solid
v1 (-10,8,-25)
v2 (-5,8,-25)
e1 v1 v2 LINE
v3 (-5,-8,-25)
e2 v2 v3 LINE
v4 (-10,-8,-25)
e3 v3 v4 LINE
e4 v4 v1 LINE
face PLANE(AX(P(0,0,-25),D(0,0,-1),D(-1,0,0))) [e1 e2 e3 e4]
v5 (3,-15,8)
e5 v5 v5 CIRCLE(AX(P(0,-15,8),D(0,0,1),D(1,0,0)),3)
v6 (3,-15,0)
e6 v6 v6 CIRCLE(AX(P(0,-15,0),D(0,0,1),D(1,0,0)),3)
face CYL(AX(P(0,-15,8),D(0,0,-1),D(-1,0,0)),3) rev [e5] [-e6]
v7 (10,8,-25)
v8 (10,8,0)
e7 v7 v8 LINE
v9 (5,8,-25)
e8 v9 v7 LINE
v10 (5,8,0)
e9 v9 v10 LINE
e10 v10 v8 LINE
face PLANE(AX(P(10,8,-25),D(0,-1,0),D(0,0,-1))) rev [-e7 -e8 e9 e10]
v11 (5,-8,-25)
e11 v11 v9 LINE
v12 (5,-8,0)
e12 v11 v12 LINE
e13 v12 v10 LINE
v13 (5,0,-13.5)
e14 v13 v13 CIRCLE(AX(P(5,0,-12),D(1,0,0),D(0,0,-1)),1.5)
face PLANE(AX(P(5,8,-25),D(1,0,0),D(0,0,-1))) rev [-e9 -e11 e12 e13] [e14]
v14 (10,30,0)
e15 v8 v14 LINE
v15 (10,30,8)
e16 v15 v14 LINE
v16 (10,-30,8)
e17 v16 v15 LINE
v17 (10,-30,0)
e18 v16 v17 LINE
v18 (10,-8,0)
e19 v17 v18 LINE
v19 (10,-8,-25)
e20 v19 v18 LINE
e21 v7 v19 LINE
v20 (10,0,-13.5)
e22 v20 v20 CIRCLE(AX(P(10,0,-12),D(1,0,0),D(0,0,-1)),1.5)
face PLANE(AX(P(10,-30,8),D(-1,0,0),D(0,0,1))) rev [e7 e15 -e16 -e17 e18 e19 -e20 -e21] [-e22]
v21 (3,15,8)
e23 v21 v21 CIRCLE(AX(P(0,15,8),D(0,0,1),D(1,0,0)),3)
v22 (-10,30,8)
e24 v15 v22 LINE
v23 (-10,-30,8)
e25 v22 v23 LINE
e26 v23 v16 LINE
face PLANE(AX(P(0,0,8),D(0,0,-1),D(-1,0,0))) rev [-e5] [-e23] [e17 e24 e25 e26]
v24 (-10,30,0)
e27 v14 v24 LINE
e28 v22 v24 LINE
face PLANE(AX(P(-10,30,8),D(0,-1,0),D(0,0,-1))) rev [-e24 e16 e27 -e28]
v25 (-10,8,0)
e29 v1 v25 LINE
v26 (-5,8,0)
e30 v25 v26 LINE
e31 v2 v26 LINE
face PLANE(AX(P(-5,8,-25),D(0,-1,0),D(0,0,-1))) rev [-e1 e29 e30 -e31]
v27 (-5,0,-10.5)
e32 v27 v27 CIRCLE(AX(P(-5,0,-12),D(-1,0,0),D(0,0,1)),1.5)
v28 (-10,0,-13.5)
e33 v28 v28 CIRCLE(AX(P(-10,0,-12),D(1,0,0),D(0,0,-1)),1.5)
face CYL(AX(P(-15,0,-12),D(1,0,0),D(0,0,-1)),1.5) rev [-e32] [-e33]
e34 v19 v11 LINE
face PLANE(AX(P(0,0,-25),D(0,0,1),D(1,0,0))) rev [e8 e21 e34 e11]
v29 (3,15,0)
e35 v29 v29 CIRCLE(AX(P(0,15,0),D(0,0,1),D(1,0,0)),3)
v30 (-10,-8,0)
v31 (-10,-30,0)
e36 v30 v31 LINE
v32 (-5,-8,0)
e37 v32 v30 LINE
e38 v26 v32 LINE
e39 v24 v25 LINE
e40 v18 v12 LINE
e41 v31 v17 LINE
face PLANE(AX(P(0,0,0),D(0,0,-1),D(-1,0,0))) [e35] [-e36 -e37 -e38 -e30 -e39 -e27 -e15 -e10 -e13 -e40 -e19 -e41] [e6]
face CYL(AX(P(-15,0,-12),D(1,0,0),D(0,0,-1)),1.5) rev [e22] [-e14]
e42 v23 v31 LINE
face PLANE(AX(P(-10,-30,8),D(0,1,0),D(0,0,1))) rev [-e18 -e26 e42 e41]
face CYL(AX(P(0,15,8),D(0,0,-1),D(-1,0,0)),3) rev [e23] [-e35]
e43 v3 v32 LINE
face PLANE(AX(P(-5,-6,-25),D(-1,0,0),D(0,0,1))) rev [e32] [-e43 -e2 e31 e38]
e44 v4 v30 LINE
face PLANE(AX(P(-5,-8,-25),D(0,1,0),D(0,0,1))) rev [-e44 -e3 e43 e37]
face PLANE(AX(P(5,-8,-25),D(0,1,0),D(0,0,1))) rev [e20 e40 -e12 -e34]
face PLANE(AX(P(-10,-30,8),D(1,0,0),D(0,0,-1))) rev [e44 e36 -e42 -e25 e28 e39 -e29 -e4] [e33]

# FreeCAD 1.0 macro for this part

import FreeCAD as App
import Part
import Sketcher

V = App.Vector

doc = App.newDocument("Part")
body = doc.addObject("PartDesign::Body", "Body")

sketch1 = body.newObject("Sketcher::SketchObject", "Sketch")
sketch1.AttachmentSupport = (doc.getObject("XY_Plane"), [""])
sketch1.MapMode = "FlatFace"
sketch1.addGeometry([
    Part.LineSegment(V(-10, 30, 0), V(-10, -30, 0)),
    Part.LineSegment(V(-10, -30, 0), V(10, -30, 0)),
    Part.LineSegment(V(10, -30, 0), V(10, 30, 0)),
    Part.LineSegment(V(10, 30, 0), V(-10, 30, 0)),
    Part.Circle(V(0, -15, 0), V(0, 0, 1), 3),
    Part.Circle(V(0, 15, 0), V(0, 0, 1), 3),
], False)
sketch1.addConstraint([
    Sketcher.Constraint("Coincident", 0, 2, 1, 1),
    Sketcher.Constraint("Coincident", 1, 2, 2, 1),
    Sketcher.Constraint("Coincident", 2, 2, 3, 1),
    Sketcher.Constraint("Coincident", 3, 2, 0, 1),
    Sketcher.Constraint("Vertical", 0),
    Sketcher.Constraint("Horizontal", 1),
    Sketcher.Constraint("Vertical", 2),
    Sketcher.Constraint("Horizontal", 3),
    Sketcher.Constraint("Equal", 4, 5),
    Sketcher.Constraint("Symmetric", 4, 3, 5, 3, -1, 1),
    Sketcher.Constraint("Symmetric", 0, 2, 2, 2, -1, 1),
    Sketcher.Constraint("PointOnObject", 4, 3, -2),
    Sketcher.Constraint("Diameter", 4, 6.0),
    Sketcher.Constraint("DistanceX", 1, 1, 1, 2, 20.0),
    Sketcher.Constraint("DistanceY", 0, 2, 0, 1, 60.0),
    Sketcher.Constraint("DistanceY", 4, 3, -1, 1, 15.0),
])
pad1 = body.newObject("PartDesign::Pad", "Pad")
pad1.Profile = sketch1
pad1.Length = 8

sketch2 = body.newObject("Sketcher::SketchObject", "Sketch001")
sketch2.AttachmentSupport = (doc.getObject("XY_Plane"), [""])
sketch2.MapMode = "FlatFace"
sketch2.addGeometry([
    Part.LineSegment(V(5, -8, 0), V(5, 8, 0)),
    Part.LineSegment(V(5, 8, 0), V(10, 8, 0)),
    Part.LineSegment(V(10, 8, 0), V(10, -8, 0)),
    Part.LineSegment(V(10, -8, 0), V(5, -8, 0)),
    Part.LineSegment(V(-10, -8, 0), V(-10, 8, 0)),
    Part.LineSegment(V(-10, 8, 0), V(-5, 8, 0)),
    Part.LineSegment(V(-5, 8, 0), V(-5, -8, 0)),
    Part.LineSegment(V(-5, -8, 0), V(-10, -8, 0)),
], False)
sketch2.addConstraint([
    Sketcher.Constraint("Coincident", 0, 2, 1, 1),
    Sketcher.Constraint("Coincident", 1, 2, 2, 1),
    Sketcher.Constraint("Coincident", 2, 2, 3, 1),
    Sketcher.Constraint("Coincident", 3, 2, 0, 1),
    Sketcher.Constraint("Coincident", 4, 2, 5, 1),
    Sketcher.Constraint("Coincident", 5, 2, 6, 1),
    Sketcher.Constraint("Coincident", 6, 2, 7, 1),
    Sketcher.Constraint("Coincident", 7, 2, 4, 1),
    Sketcher.Constraint("Vertical", 0),
    Sketcher.Constraint("Horizontal", 1),
    Sketcher.Constraint("Vertical", 2),
    Sketcher.Constraint("Horizontal", 3),
    Sketcher.Constraint("Vertical", 4),
    Sketcher.Constraint("Horizontal", 5),
    Sketcher.Constraint("Vertical", 6),
    Sketcher.Constraint("Horizontal", 7),
    Sketcher.Constraint("Symmetric", 2, 2, 4, 2, -1, 1),
    Sketcher.Constraint("Symmetric", 0, 2, 6, 2, -1, 1),
    Sketcher.Constraint("Horizontal", 1, 2, 4, 2),
    Sketcher.Constraint("DistanceX", 1, 1, 1, 2, 5.0),
    Sketcher.Constraint("DistanceY", 0, 1, 0, 2, 16.0),
    Sketcher.Constraint("DistanceX", -1, 1, 0, 2, 5.0),
])
pad2 = body.newObject("PartDesign::Pad", "Pad001")
pad2.Profile = sketch2
pad2.Length = 25
pad2.Reversed = True

sketch3 = body.newObject("Sketcher::SketchObject", "Sketch002")
sketch3.AttachmentSupport = (doc.getObject("YZ_Plane"), [""])
sketch3.MapMode = "FlatFace"
sketch3.AttachmentOffset = App.Placement(V(0, 0, 10), App.Rotation())
sketch3.addGeometry(Part.Circle(V(0, -12, 0), V(0, 0, 1), 1.5), False)
sketch3.addConstraint([
    Sketcher.Constraint("PointOnObject", 0, 3, -2),
    Sketcher.Constraint("Diameter", 0, 3.0),
    Sketcher.Constraint("DistanceY", 0, 3, -1, 1, 12.0),
])
pocket1 = body.newObject("PartDesign::Pocket", "Pocket")
pocket1.Profile = sketch3
pocket1.Length = 25

doc.recompute()
